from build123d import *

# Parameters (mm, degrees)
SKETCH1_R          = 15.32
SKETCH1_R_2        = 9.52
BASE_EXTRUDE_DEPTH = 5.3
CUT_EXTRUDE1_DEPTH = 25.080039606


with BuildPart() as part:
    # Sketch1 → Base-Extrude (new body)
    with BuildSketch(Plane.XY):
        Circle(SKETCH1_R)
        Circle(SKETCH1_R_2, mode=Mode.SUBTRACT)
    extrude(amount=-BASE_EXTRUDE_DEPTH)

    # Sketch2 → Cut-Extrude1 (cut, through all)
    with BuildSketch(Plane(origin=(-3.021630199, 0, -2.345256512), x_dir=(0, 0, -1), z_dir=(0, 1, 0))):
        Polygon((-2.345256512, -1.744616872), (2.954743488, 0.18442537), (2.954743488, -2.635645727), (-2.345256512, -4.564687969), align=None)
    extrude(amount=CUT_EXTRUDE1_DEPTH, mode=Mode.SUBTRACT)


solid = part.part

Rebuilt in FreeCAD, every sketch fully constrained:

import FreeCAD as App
import Part
import Sketcher
Q = App.Units.Quantity


def add_polygon(sketch, points):
    """Adds a closed chain of lines whose ends are joined by coincident constraints."""
    first, n = sketch.GeometryCount, len(points)
    for a, b in zip(points, points[1:] + points[:1]):
        sketch.addGeometry(Part.LineSegment(App.Vector(*a, 0), App.Vector(*b, 0)), False)
    for i in range(n):
        sketch.addConstraint(Sketcher.Constraint("Coincident", first + i, 2, first + (i + 1) % n, 1))

doc = App.newDocument("Part")
body = doc.addObject("PartDesign::Body", "Body")

sketch1 = doc.addObject("Sketcher::SketchObject", "Sketch")
body.addObject(sketch1)
sketch1.AttachmentSupport = (doc.XY_Plane, [""])
sketch1.MapMode = "FlatFace"
sketch1.addGeometry([
    Part.Circle(App.Vector(0, 0, 0), App.Vector(0, 0, 1), 15),
    Part.Circle(App.Vector(0, 0, 0), App.Vector(0, 0, 1), 10),
], False)
sketch1.addConstraint([
    Sketcher.Constraint("Coincident", 0, 3, -1, 1),
    Sketcher.Constraint("Coincident", 1, 3, -1, 1),
    Sketcher.Constraint("Diameter", 0, 30.64),
    Sketcher.Constraint("Diameter", 1, 19.04),
])
pad1 = doc.addObject("PartDesign::Pad", "Pad")
body.addObject(pad1)
pad1.Profile = sketch1
pad1.Length = 5.3
pad1.Reversed = True

sketch2 = doc.addObject("Sketcher::SketchObject", "Sketch001")
body.addObject(sketch2)
sketch2.AttachmentSupport = (doc.XZ_Plane, [""])
sketch2.MapMode = "FlatFace"
add_polygon(sketch2, [(-3.2, -5.3), (-1.3, 0), (1.5, 0), (-0.4, -5.3)])
sketch2.addConstraint([
    Sketcher.Constraint("Horizontal", 1),
    Sketcher.Constraint("Horizontal", 3),
    Sketcher.Constraint("PointOnObject", 0, 2, -1),
    Sketcher.Constraint("Parallel", 0, 2),
    Sketcher.Constraint("Angle", 0, Q("70 deg")),
    Sketcher.Constraint("DistanceY", 2, 2, -1, 1, 5.3),
    Sketcher.Constraint("DistanceX", 1, 1, 1, 2, 2.820071),
    Sketcher.Constraint("DistanceX", 0, 2, -1, 1, 1.277013),
])
pocket1 = doc.addObject("PartDesign::Pocket", "Pocket")
body.addObject(pocket1)
pocket1.Profile = sketch2
pocket1.Type = "ThroughAll"

doc.recompute()
